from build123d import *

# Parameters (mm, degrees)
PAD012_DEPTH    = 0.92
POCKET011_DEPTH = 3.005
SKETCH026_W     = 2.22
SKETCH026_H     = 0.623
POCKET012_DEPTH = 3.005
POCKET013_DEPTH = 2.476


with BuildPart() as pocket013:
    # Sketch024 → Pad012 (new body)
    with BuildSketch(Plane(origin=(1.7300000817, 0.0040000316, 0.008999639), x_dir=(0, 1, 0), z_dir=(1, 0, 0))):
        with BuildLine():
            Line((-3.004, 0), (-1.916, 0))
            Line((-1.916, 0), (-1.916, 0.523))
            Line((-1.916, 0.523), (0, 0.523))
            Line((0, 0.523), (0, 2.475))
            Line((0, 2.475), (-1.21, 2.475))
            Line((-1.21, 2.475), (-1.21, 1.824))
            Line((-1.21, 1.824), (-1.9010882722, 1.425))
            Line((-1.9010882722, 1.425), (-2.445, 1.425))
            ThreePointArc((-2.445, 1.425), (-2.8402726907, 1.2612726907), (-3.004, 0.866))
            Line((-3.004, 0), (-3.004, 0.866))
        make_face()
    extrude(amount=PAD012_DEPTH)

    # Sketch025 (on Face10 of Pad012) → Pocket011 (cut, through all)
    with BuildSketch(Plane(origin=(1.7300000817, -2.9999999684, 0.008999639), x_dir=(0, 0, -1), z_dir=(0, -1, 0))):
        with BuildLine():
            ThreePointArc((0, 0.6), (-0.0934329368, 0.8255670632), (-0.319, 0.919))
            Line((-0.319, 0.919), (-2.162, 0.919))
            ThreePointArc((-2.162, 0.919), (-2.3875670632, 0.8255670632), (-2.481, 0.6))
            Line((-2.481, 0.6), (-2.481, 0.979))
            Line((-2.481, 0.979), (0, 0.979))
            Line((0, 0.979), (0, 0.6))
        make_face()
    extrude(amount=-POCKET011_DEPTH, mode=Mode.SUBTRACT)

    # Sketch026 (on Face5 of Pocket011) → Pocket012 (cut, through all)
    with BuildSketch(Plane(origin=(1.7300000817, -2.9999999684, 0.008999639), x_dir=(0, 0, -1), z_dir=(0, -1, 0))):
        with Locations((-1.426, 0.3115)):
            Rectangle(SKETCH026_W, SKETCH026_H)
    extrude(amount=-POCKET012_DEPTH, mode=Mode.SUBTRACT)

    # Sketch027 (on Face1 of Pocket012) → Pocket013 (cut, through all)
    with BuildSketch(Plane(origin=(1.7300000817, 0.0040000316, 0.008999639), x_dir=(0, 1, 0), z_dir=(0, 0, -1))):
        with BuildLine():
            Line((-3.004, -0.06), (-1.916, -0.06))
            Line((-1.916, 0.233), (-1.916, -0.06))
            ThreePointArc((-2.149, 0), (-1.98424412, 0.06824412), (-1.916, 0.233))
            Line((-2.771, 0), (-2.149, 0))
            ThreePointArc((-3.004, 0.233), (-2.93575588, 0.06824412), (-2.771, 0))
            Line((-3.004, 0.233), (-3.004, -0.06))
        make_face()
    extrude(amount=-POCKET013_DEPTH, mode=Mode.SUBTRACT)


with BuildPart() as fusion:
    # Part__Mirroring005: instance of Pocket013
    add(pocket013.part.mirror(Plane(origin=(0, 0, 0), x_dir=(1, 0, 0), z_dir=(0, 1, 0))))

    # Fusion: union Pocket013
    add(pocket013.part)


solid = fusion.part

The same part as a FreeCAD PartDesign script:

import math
import FreeCAD as App
import Part
import Sketcher

V = App.Vector
Q = App.Units.Quantity


def add_polygon(sketch, points):
    """Adds a closed chain of lines whose ends are joined by coincident constraints."""
    first, n = sketch.GeometryCount, len(points)
    for a, b in zip(points, points[1:] + points[:1]):
        sketch.addGeometry(Part.LineSegment(App.Vector(*a, 0), App.Vector(*b, 0)), False)
    for i in range(n):
        sketch.addConstraint(Sketcher.Constraint("Coincident", first + i, 2, first + (i + 1) % n, 1))

doc = App.newDocument("Part")
body = doc.addObject("PartDesign::Body", "Body")

# Sketch on YZ plane
sketch1 = body.newObject("Sketcher::SketchObject", "Sketch")
sketch1.AttachmentSupport = (doc.getObject("YZ_Plane"), [""])
sketch1.MapMode = "FlatFace"
sketch1.AttachmentOffset = App.Placement(V(0, 0, 1.73), App.Rotation())
sketch1.addGeometry([
    Part.LineSegment(V(-3, 0, 0), V(-1.9, 0, 0)),  # 0
    Part.LineSegment(V(-1.9, 0, 0), V(-1.9, 0.5, 0)),  # 1
    Part.LineSegment(V(-1.9, 0.5, 0), V(0, 0.5, 0)),  # 2
    Part.LineSegment(V(0, 0.5, 0), V(0, 2.5, 0)),  # 3
    Part.LineSegment(V(0, 2.5, 0), V(-1.2, 2.5, 0)),  # 4
    Part.LineSegment(V(-1.2, 2.5, 0), V(-1.2, 1.8, 0)),  # 5
    Part.LineSegment(V(-1.2, 1.8, 0), V(-1.9, 1.4, 0)),  # 6
    Part.LineSegment(V(-1.9, 1.4, 0), V(-2.4, 1.4, 0)),  # 7
    Part.ArcOfCircle(Part.Circle(V(-2.4, 0.9, 0), V(0, 0, 1), 0.6), math.radians(90), math.radians(180)),  # 8
    Part.LineSegment(V(-3, 0.9, 0), V(-3, 0, 0)),  # 9
], False)
sketch1.addConstraint([
    Sketcher.Constraint("Coincident", 0, 2, 1, 1),
    Sketcher.Constraint("Coincident", 1, 2, 2, 1),
    Sketcher.Constraint("Coincident", 2, 2, 3, 1),
    Sketcher.Constraint("Coincident", 3, 2, 4, 1),
    Sketcher.Constraint("Coincident", 4, 2, 5, 1),
    Sketcher.Constraint("Coincident", 5, 2, 6, 1),
    Sketcher.Constraint("Coincident", 6, 2, 7, 1),
    Sketcher.Constraint("Tangent", 7, 2, 8, 1),
    Sketcher.Constraint("Tangent", 8, 2, 9, 1),
    Sketcher.Constraint("Coincident", 9, 2, 0, 1),
    Sketcher.Constraint("Horizontal", 0),
    Sketcher.Constraint("Vertical", 1),
    Sketcher.Constraint("Horizontal", 2),
    Sketcher.Constraint("Vertical", 3),
    Sketcher.Constraint("Horizontal", 4),
    Sketcher.Constraint("Vertical", 5),
    Sketcher.Constraint("Horizontal", 7),
    Sketcher.Constraint("Vertical", 9),
    Sketcher.Constraint("Angle", 6, Q("-150 deg")),
    Sketcher.Constraint("DistanceX", 8, 2, -1, 1, Q("3 mm")),
    Sketcher.Constraint("Radius", 8, Q("0.559 mm")),
    Sketcher.Constraint("DistanceX", 4, 2, 4, 1, Q("1.21 mm")),
    Sketcher.Constraint("DistanceX", 0, 1, 0, 2, Q("1.088 mm")),
    Sketcher.Constraint("DistanceX", 2, 1, 2, 2, Q("1.916 mm")),
    Sketcher.Constraint("DistanceY", 1, 1, 1, 2, Q("0.523 mm")),
    Sketcher.Constraint("DistanceY", 3, 1, 3, 2, Q("1.952 mm")),
    Sketcher.Constraint("DistanceY", 5, 2, 5, 1, Q("0.651 mm")),
    Sketcher.Constraint("DistanceY", 9, 2, 9, 1, Q("0.866 mm")),
    Sketcher.Constraint("DistanceY", -1, 1, 8, 3, Q("0.875 mm")),
])
pad1 = body.newObject("PartDesign::Pad", "Pad")
pad1.Profile = sketch1
pad1.Length = 0.92

# Sketch on XZ plane
sketch2 = body.newObject("Sketcher::SketchObject", "Sketch001")
sketch2.AttachmentSupport = (doc.getObject("XZ_Plane"), [""])
sketch2.MapMode = "FlatFace"
sketch2.AttachmentOffset = App.Placement(V(0, 0, 3), App.Rotation())
sketch2.addGeometry([
    Part.ArcOfCircle(Part.Circle(V(2.33, 0.33, 0), V(0, 0, 1), 0.32), math.radians(-90), math.radians(0)),  # 0
    Part.LineSegment(V(2.33, 0.01, 0), V(2.71, 0.01, 0)),  # 1
    Part.LineSegment(V(2.71, 0.01, 0), V(2.71, 2.49, 0)),  # 2
    Part.LineSegment(V(2.71, 2.49, 0), V(2.33, 2.49, 0)),  # 3
    Part.ArcOfCircle(Part.Circle(V(2.33, 2.17, 0), V(0, 0, 1), 0.32), math.radians(0), math.radians(90)),  # 4
    Part.LineSegment(V(2.65, 2.17, 0), V(2.65, 0.33, 0)),  # 5
], False)
sketch2.addConstraint([
    Sketcher.Constraint("Tangent", 0, 1, 1, 1),
    Sketcher.Constraint("Coincident", 1, 2, 2, 1),
    Sketcher.Constraint("Coincident", 2, 2, 3, 1),
    Sketcher.Constraint("Tangent", 3, 2, 4, 2),
    Sketcher.Constraint("Tangent", 4, 1, 5, 1),
    Sketcher.Constraint("Tangent", 5, 2, 0, 2),
    Sketcher.Constraint("Horizontal", 1),
    Sketcher.Constraint("Vertical", 2),
    Sketcher.Constraint("Horizontal", 3),
    Sketcher.Constraint("Vertical", 5),
    Sketcher.Constraint("Equal", 0, 4),
    Sketcher.Constraint("Radius", 0, Q("0.319 mm")),
    Sketcher.Constraint("DistanceX", 1, 1, 1, 2, Q("0.379 mm")),
    Sketcher.Constraint("DistanceY", 2, 1, 2, 2, Q("2.481 mm")),
    Sketcher.Constraint("DistanceX", -1, 1, 0, 3, Q("2.33 mm")),
    Sketcher.Constraint("DistanceY", -1, 1, 2, 2, Q("2.49 mm")),
])
pocket1 = body.newObject("PartDesign::Pocket", "Pocket")
pocket1.Profile = sketch2
pocket1.Type = "ThroughAll"

# Sketch on XZ plane
sketch3 = body.newObject("Sketcher::SketchObject", "Sketch002")
sketch3.AttachmentSupport = (doc.getObject("XZ_Plane"), [""])
sketch3.MapMode = "FlatFace"
sketch3.AttachmentOffset = App.Placement(V(0, 0, 3), App.Rotation())
add_polygon(sketch3, [(2.4, 2.5), (1.7, 2.5), (1.7, 0.3), (2.4, 0.3)])  # lines 0-3
sketch3.addConstraint([
    Sketcher.Constraint("Horizontal", 0),
    Sketcher.Constraint("Vertical", 1),
    Sketcher.Constraint("Horizontal", 2),
    Sketcher.Constraint("Vertical", 3),
    Sketcher.Constraint("DistanceY", 1, 2, 1, 1, Q("2.22 mm")),
    Sketcher.Constraint("DistanceX", 0, 2, 0, 1, Q("0.623 mm")),
    Sketcher.Constraint("DistanceX", -1, 1, 0, 2, Q("1.73 mm")),
    Sketcher.Constraint("DistanceY", -1, 1, 0, 2, Q("2.545 mm")),
])
pocket2 = body.newObject("PartDesign::Pocket", "Pocket001")
pocket2.Profile = sketch3
pocket2.Type = "ThroughAll"

# Sketch on XY plane
sketch4 = body.newObject("Sketcher::SketchObject", "Sketch003")
sketch4.AttachmentSupport = (doc.getObject("XY_Plane"), [""])
sketch4.MapMode = "FlatFace"
sketch4.AttachmentOffset = App.Placement(V(0, 0, 0.009), App.Rotation())
sketch4.addGeometry([
    Part.LineSegment(V(1.67, -3, 0), V(1.67, -1.91, 0)),  # 0
    Part.LineSegment(V(1.67, -1.91, 0), V(1.96, -1.91, 0)),  # 1
    Part.ArcOfCircle(Part.Circle(V(1.96, -2.14, 0), V(0, 0, 1), 0.23), math.radians(90), math.radians(180)),  # 2
    Part.LineSegment(V(1.73, -2.14, 0), V(1.73, -2.77, 0)),  # 3
    Part.ArcOfCircle(Part.Circle(V(1.96, -2.77, 0), V(0, 0, 1), 0.23), math.radians(180), math.radians(270)),  # 4
    Part.LineSegment(V(1.96, -3, 0), V(1.67, -3, 0)),  # 5
], False)
sketch4.addConstraint([
    Sketcher.Constraint("Coincident", 0, 2, 1, 1),
    Sketcher.Constraint("Tangent", 1, 2, 2, 1),
    Sketcher.Constraint("Tangent", 2, 2, 3, 1),
    Sketcher.Constraint("Tangent", 3, 2, 4, 1),
    Sketcher.Constraint("Tangent", 4, 2, 5, 1),
    Sketcher.Constraint("Coincident", 5, 2, 0, 1),
    Sketcher.Constraint("Vertical", 0),
    Sketcher.Constraint("Horizontal", 1),
    Sketcher.Constraint("Vertical", 3),
    Sketcher.Constraint("Horizontal", 5),
    Sketcher.Constraint("Equal", 2, 4),
    Sketcher.Constraint("DistanceY", 4, 2, -1, 1, Q("3 mm")),
    Sketcher.Constraint("Radius", 2, Q("0.233 mm")),
    Sketcher.Constraint("DistanceX", 1, 1, 1, 2, Q("0.293 mm")),
    Sketcher.Constraint("DistanceY", 0, 1, 0, 2, Q("1.088 mm")),
    Sketcher.Constraint("DistanceX", -1, 1, 0, 2, Q("1.67 mm")),
])
pocket3 = body.newObject("PartDesign::Pocket", "Pocket002")
pocket3.Profile = sketch4
pocket3.Type = "ThroughAll"
pocket3.Reversed = True
body2 = doc.addObject("PartDesign::Body", "Body001")
doc.recompute()

mirroring = doc.addObject("Part::Mirroring", "Mirroring")
mirroring.Source = body
mirroring.Base = V(0, 0, 0)
mirroring.Normal = V(0, 1, 0)
body2.BaseFeature = mirroring
doc.recompute()

boolean = body2.newObject("PartDesign::Boolean", "Boolean")
boolean.Type = "Fuse"
boolean.addObjects([body])
mirroring.Visibility = False

doc.recompute()
